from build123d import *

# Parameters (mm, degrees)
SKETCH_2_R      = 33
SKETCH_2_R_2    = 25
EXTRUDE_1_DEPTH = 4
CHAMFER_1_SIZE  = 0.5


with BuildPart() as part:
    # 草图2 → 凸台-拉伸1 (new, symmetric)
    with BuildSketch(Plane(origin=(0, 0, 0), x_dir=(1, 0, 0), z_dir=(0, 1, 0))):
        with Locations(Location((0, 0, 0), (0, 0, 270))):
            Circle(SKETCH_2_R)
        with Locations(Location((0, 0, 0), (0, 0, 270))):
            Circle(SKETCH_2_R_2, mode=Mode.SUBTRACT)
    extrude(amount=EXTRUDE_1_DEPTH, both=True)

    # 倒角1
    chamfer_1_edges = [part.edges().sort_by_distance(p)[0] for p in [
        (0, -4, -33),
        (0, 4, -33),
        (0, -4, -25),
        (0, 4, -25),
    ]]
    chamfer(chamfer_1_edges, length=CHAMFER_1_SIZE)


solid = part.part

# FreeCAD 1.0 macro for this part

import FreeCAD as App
import Part
import Sketcher
from FreeCAD import Vector
Q = App.Units.Quantity


def edges_at(feature, points):
    """Names of the edges that pass closest to the given points."""
    edges = feature.Shape.Edges
    near = lambda p: min(range(len(edges)), key=lambda i: edges[i].distToShape(Part.Vertex(*p))[0])
    return sorted({f"Edge{near(p) + 1}" for p in points})

doc = App.newDocument("Part")
body = doc.addObject("PartDesign::Body", "Body")

# Sketch on XZ plane
sketch1 = body.newObject("Sketcher::SketchObject", "Sketch")
sketch1.AttachmentSupport = (doc.getObject("XZ_Plane"), [""])
sketch1.MapMode = "FlatFace"
sketch1.addGeometry(Part.Circle(Vector(0, 0, 0), Vector(0, 0, 1), 33), False)
sketch1.addGeometry(Part.Circle(Vector(0, 0, 0), Vector(0, 0, 1), 25), False)
sketch1.addConstraint(Sketcher.Constraint("Coincident", 0, 3, -1, 1))
sketch1.addConstraint(Sketcher.Constraint("Coincident", 1, 3, -1, 1))
sketch1.addConstraint(Sketcher.Constraint("Diameter", 0, Q("66 mm")))
sketch1.addConstraint(Sketcher.Constraint("Diameter", 1, Q("50 mm")))
pad1 = body.newObject("PartDesign::Pad", "Pad")
pad1.Profile = sketch1
pad1.Length = 8
pad1.Midplane = True
doc.recompute()

chamfer = body.newObject("PartDesign::Chamfer", "Chamfer")
chamfer.Base = (pad1, edges_at(pad1, [
    (0, -4, -33),
    (0, 4, -33),
    (0, -4, -25),
    (0, 4, -25),
]))
chamfer.Size = 0.5

doc.recompute()
